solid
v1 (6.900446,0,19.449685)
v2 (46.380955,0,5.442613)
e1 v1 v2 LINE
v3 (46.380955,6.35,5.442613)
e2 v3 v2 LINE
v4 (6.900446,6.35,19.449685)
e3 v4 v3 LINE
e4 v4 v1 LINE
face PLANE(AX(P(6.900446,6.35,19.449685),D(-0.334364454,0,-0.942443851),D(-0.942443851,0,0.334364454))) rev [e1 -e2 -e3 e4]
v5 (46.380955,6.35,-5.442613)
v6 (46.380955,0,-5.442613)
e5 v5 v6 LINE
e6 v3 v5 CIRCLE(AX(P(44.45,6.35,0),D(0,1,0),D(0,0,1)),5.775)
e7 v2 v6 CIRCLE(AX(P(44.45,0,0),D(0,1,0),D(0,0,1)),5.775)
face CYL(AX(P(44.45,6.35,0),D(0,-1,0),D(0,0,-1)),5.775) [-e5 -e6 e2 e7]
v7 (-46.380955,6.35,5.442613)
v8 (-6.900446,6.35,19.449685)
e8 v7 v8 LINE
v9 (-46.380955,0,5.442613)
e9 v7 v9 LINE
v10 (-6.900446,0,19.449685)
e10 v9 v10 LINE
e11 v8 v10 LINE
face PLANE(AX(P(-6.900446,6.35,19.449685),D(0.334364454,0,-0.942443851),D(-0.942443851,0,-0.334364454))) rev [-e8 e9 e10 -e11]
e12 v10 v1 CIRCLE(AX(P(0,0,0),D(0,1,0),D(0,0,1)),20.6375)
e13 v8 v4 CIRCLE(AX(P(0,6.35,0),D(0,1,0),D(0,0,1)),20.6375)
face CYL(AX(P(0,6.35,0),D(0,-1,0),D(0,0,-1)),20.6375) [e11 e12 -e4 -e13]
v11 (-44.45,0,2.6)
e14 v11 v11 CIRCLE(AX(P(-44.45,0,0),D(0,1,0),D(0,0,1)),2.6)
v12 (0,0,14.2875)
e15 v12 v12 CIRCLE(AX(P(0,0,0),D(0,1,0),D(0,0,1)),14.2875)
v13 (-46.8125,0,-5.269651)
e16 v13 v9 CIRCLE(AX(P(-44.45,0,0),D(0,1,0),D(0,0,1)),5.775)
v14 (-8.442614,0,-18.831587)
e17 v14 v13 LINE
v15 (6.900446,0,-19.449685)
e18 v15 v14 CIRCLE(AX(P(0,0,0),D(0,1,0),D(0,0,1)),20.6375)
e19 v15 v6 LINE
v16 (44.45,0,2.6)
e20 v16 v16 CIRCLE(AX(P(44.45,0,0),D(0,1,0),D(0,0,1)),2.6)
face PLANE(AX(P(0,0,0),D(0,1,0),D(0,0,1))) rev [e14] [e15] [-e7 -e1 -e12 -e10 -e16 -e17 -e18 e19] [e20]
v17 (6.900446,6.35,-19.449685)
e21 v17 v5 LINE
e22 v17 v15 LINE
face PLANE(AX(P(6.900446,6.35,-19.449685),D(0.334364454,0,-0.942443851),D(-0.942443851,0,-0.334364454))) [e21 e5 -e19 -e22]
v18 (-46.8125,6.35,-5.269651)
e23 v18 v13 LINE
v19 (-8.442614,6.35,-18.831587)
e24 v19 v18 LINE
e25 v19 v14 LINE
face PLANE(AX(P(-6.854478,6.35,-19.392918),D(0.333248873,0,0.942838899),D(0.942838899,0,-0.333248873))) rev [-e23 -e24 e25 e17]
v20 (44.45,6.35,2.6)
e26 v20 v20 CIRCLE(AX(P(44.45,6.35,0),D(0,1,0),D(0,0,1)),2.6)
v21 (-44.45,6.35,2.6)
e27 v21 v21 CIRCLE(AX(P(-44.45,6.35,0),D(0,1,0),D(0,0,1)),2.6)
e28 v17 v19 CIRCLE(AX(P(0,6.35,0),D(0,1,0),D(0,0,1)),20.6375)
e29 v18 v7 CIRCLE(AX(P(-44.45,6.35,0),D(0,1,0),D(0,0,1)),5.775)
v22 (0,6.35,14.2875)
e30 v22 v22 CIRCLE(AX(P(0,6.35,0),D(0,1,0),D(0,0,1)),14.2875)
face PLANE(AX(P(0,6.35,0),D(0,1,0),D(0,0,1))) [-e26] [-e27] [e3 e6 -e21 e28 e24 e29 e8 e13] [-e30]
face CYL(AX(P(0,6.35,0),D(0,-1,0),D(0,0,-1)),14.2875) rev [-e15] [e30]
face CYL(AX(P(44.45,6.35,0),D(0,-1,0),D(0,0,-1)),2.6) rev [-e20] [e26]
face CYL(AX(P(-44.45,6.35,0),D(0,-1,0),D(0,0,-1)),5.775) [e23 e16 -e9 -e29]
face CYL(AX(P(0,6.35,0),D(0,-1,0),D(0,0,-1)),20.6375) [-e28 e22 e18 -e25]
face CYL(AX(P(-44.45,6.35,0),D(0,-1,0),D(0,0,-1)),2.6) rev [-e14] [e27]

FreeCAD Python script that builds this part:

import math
import FreeCAD as App
import Part
import Sketcher

V = App.Vector
Q = App.Units.Quantity

doc = App.newDocument("Part")
params = doc.addObject("Spreadsheet::Sheet", "Params")
for row, (alias, value) in enumerate([
    ("sketch1_diameter", "1.125 in"),
    ("sketch1_radius", "0.8125 in"),
    ("pad1_length", "0.25 in"),
], start=1):
    params.set(f"A{row}", alias)
    params.set(f"B{row}", "=" + value)
    params.setAlias(f"B{row}", alias)

body = doc.addObject("PartDesign::Body", "Body")

# Sketch on XZ plane
sketch1 = doc.addObject("Sketcher::SketchObject", "Sketch")
body.addObject(sketch1)
sketch1.AttachmentSupport = (doc.XZ_Plane, [""])
sketch1.MapMode = "FlatFace"
sketch1.addGeometry([
    Part.LineSegment(V(46.4, -5.4, 0), V(6.9, -19.4, 0)),  # 0
    Part.ArcOfCircle(Part.Circle(V(0, 0, 0), V(0, 0, 1), 20.6), math.radians(-114), math.radians(-70)),  # 1
    Part.LineSegment(V(-8.4, -18.8, 0), V(-46.8, -5.3, 0)),  # 2
    Part.ArcOfCircle(Part.Circle(V(-44.5, 0, 0), V(0, 0, 1), 5.8), math.radians(110), math.radians(246)),  # 3
    Part.LineSegment(V(-46.4, 5.4, 0), V(-6.9, 19.4, 0)),  # 4
    Part.ArcOfCircle(Part.Circle(V(0, 0, 0), V(0, 0, 1), 20.6), math.radians(70), math.radians(110)),  # 5
    Part.LineSegment(V(6.9, 19.4, 0), V(46.4, 5.4, 0)),  # 6
    Part.ArcOfCircle(Part.Circle(V(44.5, 0, 0), V(0, 0, 1), 5.8), math.radians(-70), math.radians(70)),  # 7
    Part.Circle(V(-44.5, 0, 0), V(0, 0, 1), 2.6),  # 8
    Part.Circle(V(0, 0, 0), V(0, 0, 1), 14.3),  # 9
    Part.Circle(V(44.5, 0, 0), V(0, 0, 1), 2.6),  # 10
], False)
sketch1.addConstraint([
    Sketcher.Constraint("Tangent", 0, 2, 1, 2),
    Sketcher.Constraint("Coincident", 1, 1, 2, 1),
    Sketcher.Constraint("Coincident", 2, 2, 3, 2),
    Sketcher.Constraint("Tangent", 3, 1, 4, 1),
    Sketcher.Constraint("Tangent", 4, 2, 5, 2),
    Sketcher.Constraint("Tangent", 5, 1, 6, 1),
    Sketcher.Constraint("Tangent", 6, 2, 7, 2),
    Sketcher.Constraint("Tangent", 7, 1, 0, 1),
    Sketcher.Constraint("Coincident", 1, 3, -1, 1),
    Sketcher.Constraint("Coincident", 5, 3, -1, 1),
    Sketcher.Constraint("Coincident", 9, 3, -1, 1),
    Sketcher.Constraint("Coincident", 8, 3, 3, 3),
    Sketcher.Constraint("Coincident", 10, 3, 7, 3),
    Sketcher.Constraint("Equal", 1, 5),
    Sketcher.Constraint("Equal", 3, 7),
    Sketcher.Constraint("Equal", 8, 10),
    Sketcher.Constraint("Symmetric", 3, 3, 7, 3, -1, 1),
    Sketcher.Constraint("PointOnObject", 3, 3, -1),
    Sketcher.Constraint("Diameter", 9, Q("1.125 in")),
    Sketcher.Constraint("Radius", 1, Q("0.8125 in")),
    Sketcher.Constraint("DistanceX", 3, 3, 7, 3, Q("3.5 in")),
    Sketcher.Constraint("Diameter", 8, Q("5.2 mm")),
    Sketcher.Constraint("Radius", 3, Q("5.775 mm")),
    Sketcher.Constraint("DistanceX", 2, 2, -1, 1, Q("46.8125 mm")),
    Sketcher.Constraint("DistanceY", 1, 1, 3, 1, Q("24.274201 mm")),
])
sketch1.setExpression("Constraints[18]", "Params.sketch1_diameter")
sketch1.setExpression("Constraints[19]", "Params.sketch1_radius")
pad1 = doc.addObject("PartDesign::Pad", "Pad")
body.addObject(pad1)
pad1.Profile = sketch1
pad1.setExpression("Length", "Params.pad1_length")
pad1.Reversed = True

doc.recompute()
